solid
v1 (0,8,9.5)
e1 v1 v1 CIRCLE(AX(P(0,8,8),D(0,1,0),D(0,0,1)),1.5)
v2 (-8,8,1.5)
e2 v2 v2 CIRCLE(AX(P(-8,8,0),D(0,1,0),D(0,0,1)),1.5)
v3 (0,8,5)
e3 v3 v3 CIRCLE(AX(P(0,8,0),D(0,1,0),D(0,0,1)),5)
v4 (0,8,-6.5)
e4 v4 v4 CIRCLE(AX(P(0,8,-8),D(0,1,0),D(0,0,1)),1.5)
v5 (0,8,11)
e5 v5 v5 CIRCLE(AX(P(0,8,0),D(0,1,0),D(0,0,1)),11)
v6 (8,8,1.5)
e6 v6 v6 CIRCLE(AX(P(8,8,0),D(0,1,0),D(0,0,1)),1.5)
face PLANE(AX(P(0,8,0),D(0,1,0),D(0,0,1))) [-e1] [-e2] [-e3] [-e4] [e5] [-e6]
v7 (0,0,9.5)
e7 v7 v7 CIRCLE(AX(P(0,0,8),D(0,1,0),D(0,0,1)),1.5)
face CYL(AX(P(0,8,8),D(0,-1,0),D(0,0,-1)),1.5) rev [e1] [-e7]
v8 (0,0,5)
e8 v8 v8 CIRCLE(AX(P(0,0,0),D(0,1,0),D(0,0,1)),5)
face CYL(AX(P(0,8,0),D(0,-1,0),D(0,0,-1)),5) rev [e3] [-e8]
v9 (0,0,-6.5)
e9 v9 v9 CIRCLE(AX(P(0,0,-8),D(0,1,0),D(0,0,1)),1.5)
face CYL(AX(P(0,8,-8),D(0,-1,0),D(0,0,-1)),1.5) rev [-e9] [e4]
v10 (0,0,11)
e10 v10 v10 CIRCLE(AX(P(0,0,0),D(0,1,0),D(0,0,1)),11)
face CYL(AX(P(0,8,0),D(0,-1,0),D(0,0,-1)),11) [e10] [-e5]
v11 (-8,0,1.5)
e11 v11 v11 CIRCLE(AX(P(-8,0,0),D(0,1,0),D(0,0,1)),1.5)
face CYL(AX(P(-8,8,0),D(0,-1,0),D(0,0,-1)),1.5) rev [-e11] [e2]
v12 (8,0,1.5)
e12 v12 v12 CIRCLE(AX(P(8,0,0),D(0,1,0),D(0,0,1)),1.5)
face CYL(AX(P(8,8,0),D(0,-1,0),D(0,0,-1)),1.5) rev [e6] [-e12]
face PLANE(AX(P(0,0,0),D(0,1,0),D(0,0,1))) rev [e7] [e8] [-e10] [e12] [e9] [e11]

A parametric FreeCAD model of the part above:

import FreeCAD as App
import Part
import Sketcher
from FreeCAD import Vector
Q = App.Units.Quantity

doc = App.newDocument("Part")
params = doc.addObject("Spreadsheet::Sheet", "Params")
for row, (alias, value) in enumerate([
    ("sketch1_diameter", "22 mm"),
    ("sketch1_diameter2", "3 mm"),
    ("sketch1_diameter3", "10 mm"),
    ("pad1_length", "8 mm"),
], start=1):
    params.set(f"A{row}", alias)
    params.set(f"B{row}", "=" + value)
    params.setAlias(f"B{row}", alias)

body = doc.addObject("PartDesign::Body", "Body")

# Sketch on XZ plane
sketch1 = body.newObject("Sketcher::SketchObject", "Sketch")
sketch1.AttachmentSupport = (doc.getObject("XZ_Plane"), [""])
sketch1.MapMode = "FlatFace"
sketch1.addGeometry([
    Part.Circle(Vector(0, 0, 0), Vector(0, 0, 1), 11),  # 0
    Part.Circle(Vector(0, -8, 0), Vector(0, 0, 1), 1.5),  # 1
    Part.Circle(Vector(-8, 0, 0), Vector(0, 0, 1), 1.5),  # 2
    Part.Circle(Vector(8, 0, 0), Vector(0, 0, 1), 1.5),  # 3
    Part.Circle(Vector(0, 0, 0), Vector(0, 0, 1), 5),  # 4
    Part.Circle(Vector(0, 8, 0), Vector(0, 0, 1), 1.5),  # 5
], False)
sketch1.addConstraint([
    Sketcher.Constraint("Coincident", 0, 3, -1, 1),
    Sketcher.Constraint("Coincident", 4, 3, -1, 1),
    Sketcher.Constraint("Equal", 1, 2),
    Sketcher.Constraint("Equal", 2, 3),
    Sketcher.Constraint("Equal", 3, 5),
    Sketcher.Constraint("Symmetric", 2, 3, 3, 3, -1, 1),
    Sketcher.Constraint("Symmetric", 1, 3, 5, 3, -1, 1),
    Sketcher.Constraint("PointOnObject", 1, 3, -2),
    Sketcher.Constraint("PointOnObject", 2, 3, -1),
    Sketcher.Constraint("Diameter", 0, Q("22 mm")),
    Sketcher.Constraint("Diameter", 1, Q("3 mm")),
    Sketcher.Constraint("Diameter", 4, Q("10 mm")),
    Sketcher.Constraint("DistanceY", 1, 3, -1, 1, Q("8 mm")),
    Sketcher.Constraint("DistanceX", 2, 3, -1, 1, Q("8 mm")),
])
sketch1.setExpression("Constraints[9]", "Params.sketch1_diameter")
sketch1.setExpression("Constraints[10]", "Params.sketch1_diameter2")
sketch1.setExpression("Constraints[11]", "Params.sketch1_diameter3")
pad1 = body.newObject("PartDesign::Pad", "Pad")
pad1.Profile = sketch1
pad1.setExpression("Length", "Params.pad1_length")
pad1.Reversed = True

doc.recompute()
